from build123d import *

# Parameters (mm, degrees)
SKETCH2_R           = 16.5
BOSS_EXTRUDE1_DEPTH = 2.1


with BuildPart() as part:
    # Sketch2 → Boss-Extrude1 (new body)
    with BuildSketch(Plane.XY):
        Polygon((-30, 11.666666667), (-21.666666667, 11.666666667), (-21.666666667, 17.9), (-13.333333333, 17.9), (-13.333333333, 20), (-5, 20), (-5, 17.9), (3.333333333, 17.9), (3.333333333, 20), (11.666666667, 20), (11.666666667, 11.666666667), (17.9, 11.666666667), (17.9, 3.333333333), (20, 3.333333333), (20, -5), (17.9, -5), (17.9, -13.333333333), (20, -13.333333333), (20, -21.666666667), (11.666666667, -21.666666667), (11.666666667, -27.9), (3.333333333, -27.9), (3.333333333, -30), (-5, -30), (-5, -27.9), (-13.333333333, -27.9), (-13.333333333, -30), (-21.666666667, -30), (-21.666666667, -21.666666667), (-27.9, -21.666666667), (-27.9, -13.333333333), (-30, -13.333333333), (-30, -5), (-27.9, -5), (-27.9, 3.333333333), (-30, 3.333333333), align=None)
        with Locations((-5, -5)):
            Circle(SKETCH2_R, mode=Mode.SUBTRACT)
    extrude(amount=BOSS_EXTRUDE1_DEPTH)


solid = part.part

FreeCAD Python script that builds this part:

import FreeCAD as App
import Part
import Sketcher
from FreeCAD import Vector


def add_polygon(sketch, points):
    """Adds a closed chain of lines whose ends are joined by coincident constraints."""
    first, n = sketch.GeometryCount, len(points)
    for a, b in zip(points, points[1:] + points[:1]):
        sketch.addGeometry(Part.LineSegment(App.Vector(*a, 0), App.Vector(*b, 0)), False)
    for i in range(n):
        sketch.addConstraint(Sketcher.Constraint("Coincident", first + i, 2, first + (i + 1) % n, 1))

doc = App.newDocument("Part")
body = doc.addObject("PartDesign::Body", "Body")

sketch1 = doc.addObject("Sketcher::SketchObject", "Sketch")
body.addObject(sketch1)
sketch1.AttachmentSupport = (doc.XY_Plane, [""])
sketch1.MapMode = "FlatFace"
add_polygon(sketch1, [(-21.7, 11.7), (-30, 11.7), (-30, 3.3), (-27.9, 3.3), (-27.9, -5), (-30, -5), (-30, -13.3), (-27.9, -13.3), (-27.9, -21.7), (-21.7, -21.7), (-21.7, -30), (-13.3, -30), (-13.3, -27.9), (-5, -27.9), (-5, -30), (3.3, -30), (3.3, -27.9), (11.7, -27.9), (11.7, -21.7), (20, -21.7), (20, -13.3), (17.9, -13.3), (17.9, -5), (20, -5), (20, 3.3), (17.9, 3.3), (17.9, 11.7), (11.7, 11.7), (11.7, 20), (3.3, 20), (3.3, 17.9), (-5, 17.9), (-5, 20), (-13.3, 20), (-13.3, 17.9), (-21.7, 17.9)])
sketch1.addGeometry(Part.Circle(Vector(-5, -5, 0), Vector(0, 0, 1), 16.5), False)
sketch1.addConstraint([
    Sketcher.Constraint("Horizontal", 0),
    Sketcher.Constraint("Vertical", 1),
    Sketcher.Constraint("Horizontal", 2),
    Sketcher.Constraint("Vertical", 3),
    Sketcher.Constraint("Horizontal", 4),
    Sketcher.Constraint("Vertical", 5),
    Sketcher.Constraint("Horizontal", 6),
    Sketcher.Constraint("Vertical", 7),
    Sketcher.Constraint("Horizontal", 8),
    Sketcher.Constraint("Vertical", 9),
    Sketcher.Constraint("Horizontal", 10),
    Sketcher.Constraint("Vertical", 11),
    Sketcher.Constraint("Horizontal", 12),
    Sketcher.Constraint("Vertical", 13),
    Sketcher.Constraint("Horizontal", 14),
    Sketcher.Constraint("Vertical", 15),
    Sketcher.Constraint("Horizontal", 16),
    Sketcher.Constraint("Vertical", 17),
    Sketcher.Constraint("Horizontal", 18),
    Sketcher.Constraint("Vertical", 19),
    Sketcher.Constraint("Horizontal", 20),
    Sketcher.Constraint("Vertical", 21),
    Sketcher.Constraint("Horizontal", 22),
    Sketcher.Constraint("Vertical", 23),
    Sketcher.Constraint("Horizontal", 24),
    Sketcher.Constraint("Vertical", 25),
    Sketcher.Constraint("Horizontal", 26),
    Sketcher.Constraint("Vertical", 27),
    Sketcher.Constraint("Horizontal", 28),
    Sketcher.Constraint("Vertical", 29),
    Sketcher.Constraint("Horizontal", 30),
    Sketcher.Constraint("Vertical", 31),
    Sketcher.Constraint("Horizontal", 32),
    Sketcher.Constraint("Vertical", 33),
    Sketcher.Constraint("Horizontal", 34),
    Sketcher.Constraint("Vertical", 35),
    Sketcher.Constraint("Horizontal", 36, 3, 3, 2),
    Sketcher.Constraint("Horizontal", 10, 2, 13, 2),
    Sketcher.Constraint("Horizontal", 12, 2, 15, 2),
    Sketcher.Constraint("Horizontal", 8, 2, 17, 2),
    Sketcher.Constraint("Horizontal", 6, 2, 19, 2),
    Sketcher.Constraint("Horizontal", 4, 2, 21, 2),
    Sketcher.Constraint("Horizontal", 2, 2, 23, 2),
    Sketcher.Constraint("Horizontal", 0, 2, 25, 2),
    Sketcher.Constraint("Horizontal", 28, 2, 31, 2),
    Sketcher.Constraint("Horizontal", 30, 2, 33, 2),
    Sketcher.Constraint("Vertical", 1, 2, 4, 2),
    Sketcher.Constraint("Vertical", 3, 2, 6, 2),
    Sketcher.Constraint("Vertical", 36, 3, 12, 2),
    Sketcher.Constraint("Vertical", 19, 2, 22, 2),
    Sketcher.Constraint("Vertical", 21, 2, 24, 2),
    Sketcher.Constraint("Vertical", 17, 2, 26, 2),
    Sketcher.Constraint("Vertical", 15, 2, 28, 2),
    Sketcher.Constraint("Vertical", 13, 2, 30, 2),
    Sketcher.Constraint("Vertical", 11, 2, 32, 2),
    Sketcher.Constraint("Vertical", 9, 2, 34, 2),
    Sketcher.Constraint("Equal", 0, 10),
    Sketcher.Constraint("Equal", 10, 12),
    Sketcher.Constraint("Equal", 12, 14),
    Sketcher.Constraint("Equal", 14, 16),
    Sketcher.Constraint("Equal", 16, 18),
    Sketcher.Constraint("Equal", 6, 20),
    Sketcher.Constraint("Equal", 34, 1),
    Sketcher.Constraint("Equal", 1, 3),
    Sketcher.Constraint("Equal", 3, 5),
    Sketcher.Constraint("Equal", 5, 7),
    Sketcher.Constraint("Equal", 7, 9),
    Sketcher.Constraint("Equal", 24, 11),
    Sketcher.Constraint("Equal", 25, 27),
    Sketcher.Constraint("Equal", 15, 29),
    Sketcher.Constraint("Diameter", 36, 33.0),
    Sketcher.Constraint("DistanceX", 2, 1, 2, 2, 2.1),
    Sketcher.Constraint("DistanceX", 36, 3, -1, 1, 5.0),
    Sketcher.Constraint("DistanceY", 36, 3, -1, 1, 5.0),
    Sketcher.Constraint("DistanceX", 0, 2, -1, 1, 30.0),
])
pad1 = doc.addObject("PartDesign::Pad", "Pad")
body.addObject(pad1)
pad1.Profile = sketch1
pad1.Length = 2.1

doc.recompute()
